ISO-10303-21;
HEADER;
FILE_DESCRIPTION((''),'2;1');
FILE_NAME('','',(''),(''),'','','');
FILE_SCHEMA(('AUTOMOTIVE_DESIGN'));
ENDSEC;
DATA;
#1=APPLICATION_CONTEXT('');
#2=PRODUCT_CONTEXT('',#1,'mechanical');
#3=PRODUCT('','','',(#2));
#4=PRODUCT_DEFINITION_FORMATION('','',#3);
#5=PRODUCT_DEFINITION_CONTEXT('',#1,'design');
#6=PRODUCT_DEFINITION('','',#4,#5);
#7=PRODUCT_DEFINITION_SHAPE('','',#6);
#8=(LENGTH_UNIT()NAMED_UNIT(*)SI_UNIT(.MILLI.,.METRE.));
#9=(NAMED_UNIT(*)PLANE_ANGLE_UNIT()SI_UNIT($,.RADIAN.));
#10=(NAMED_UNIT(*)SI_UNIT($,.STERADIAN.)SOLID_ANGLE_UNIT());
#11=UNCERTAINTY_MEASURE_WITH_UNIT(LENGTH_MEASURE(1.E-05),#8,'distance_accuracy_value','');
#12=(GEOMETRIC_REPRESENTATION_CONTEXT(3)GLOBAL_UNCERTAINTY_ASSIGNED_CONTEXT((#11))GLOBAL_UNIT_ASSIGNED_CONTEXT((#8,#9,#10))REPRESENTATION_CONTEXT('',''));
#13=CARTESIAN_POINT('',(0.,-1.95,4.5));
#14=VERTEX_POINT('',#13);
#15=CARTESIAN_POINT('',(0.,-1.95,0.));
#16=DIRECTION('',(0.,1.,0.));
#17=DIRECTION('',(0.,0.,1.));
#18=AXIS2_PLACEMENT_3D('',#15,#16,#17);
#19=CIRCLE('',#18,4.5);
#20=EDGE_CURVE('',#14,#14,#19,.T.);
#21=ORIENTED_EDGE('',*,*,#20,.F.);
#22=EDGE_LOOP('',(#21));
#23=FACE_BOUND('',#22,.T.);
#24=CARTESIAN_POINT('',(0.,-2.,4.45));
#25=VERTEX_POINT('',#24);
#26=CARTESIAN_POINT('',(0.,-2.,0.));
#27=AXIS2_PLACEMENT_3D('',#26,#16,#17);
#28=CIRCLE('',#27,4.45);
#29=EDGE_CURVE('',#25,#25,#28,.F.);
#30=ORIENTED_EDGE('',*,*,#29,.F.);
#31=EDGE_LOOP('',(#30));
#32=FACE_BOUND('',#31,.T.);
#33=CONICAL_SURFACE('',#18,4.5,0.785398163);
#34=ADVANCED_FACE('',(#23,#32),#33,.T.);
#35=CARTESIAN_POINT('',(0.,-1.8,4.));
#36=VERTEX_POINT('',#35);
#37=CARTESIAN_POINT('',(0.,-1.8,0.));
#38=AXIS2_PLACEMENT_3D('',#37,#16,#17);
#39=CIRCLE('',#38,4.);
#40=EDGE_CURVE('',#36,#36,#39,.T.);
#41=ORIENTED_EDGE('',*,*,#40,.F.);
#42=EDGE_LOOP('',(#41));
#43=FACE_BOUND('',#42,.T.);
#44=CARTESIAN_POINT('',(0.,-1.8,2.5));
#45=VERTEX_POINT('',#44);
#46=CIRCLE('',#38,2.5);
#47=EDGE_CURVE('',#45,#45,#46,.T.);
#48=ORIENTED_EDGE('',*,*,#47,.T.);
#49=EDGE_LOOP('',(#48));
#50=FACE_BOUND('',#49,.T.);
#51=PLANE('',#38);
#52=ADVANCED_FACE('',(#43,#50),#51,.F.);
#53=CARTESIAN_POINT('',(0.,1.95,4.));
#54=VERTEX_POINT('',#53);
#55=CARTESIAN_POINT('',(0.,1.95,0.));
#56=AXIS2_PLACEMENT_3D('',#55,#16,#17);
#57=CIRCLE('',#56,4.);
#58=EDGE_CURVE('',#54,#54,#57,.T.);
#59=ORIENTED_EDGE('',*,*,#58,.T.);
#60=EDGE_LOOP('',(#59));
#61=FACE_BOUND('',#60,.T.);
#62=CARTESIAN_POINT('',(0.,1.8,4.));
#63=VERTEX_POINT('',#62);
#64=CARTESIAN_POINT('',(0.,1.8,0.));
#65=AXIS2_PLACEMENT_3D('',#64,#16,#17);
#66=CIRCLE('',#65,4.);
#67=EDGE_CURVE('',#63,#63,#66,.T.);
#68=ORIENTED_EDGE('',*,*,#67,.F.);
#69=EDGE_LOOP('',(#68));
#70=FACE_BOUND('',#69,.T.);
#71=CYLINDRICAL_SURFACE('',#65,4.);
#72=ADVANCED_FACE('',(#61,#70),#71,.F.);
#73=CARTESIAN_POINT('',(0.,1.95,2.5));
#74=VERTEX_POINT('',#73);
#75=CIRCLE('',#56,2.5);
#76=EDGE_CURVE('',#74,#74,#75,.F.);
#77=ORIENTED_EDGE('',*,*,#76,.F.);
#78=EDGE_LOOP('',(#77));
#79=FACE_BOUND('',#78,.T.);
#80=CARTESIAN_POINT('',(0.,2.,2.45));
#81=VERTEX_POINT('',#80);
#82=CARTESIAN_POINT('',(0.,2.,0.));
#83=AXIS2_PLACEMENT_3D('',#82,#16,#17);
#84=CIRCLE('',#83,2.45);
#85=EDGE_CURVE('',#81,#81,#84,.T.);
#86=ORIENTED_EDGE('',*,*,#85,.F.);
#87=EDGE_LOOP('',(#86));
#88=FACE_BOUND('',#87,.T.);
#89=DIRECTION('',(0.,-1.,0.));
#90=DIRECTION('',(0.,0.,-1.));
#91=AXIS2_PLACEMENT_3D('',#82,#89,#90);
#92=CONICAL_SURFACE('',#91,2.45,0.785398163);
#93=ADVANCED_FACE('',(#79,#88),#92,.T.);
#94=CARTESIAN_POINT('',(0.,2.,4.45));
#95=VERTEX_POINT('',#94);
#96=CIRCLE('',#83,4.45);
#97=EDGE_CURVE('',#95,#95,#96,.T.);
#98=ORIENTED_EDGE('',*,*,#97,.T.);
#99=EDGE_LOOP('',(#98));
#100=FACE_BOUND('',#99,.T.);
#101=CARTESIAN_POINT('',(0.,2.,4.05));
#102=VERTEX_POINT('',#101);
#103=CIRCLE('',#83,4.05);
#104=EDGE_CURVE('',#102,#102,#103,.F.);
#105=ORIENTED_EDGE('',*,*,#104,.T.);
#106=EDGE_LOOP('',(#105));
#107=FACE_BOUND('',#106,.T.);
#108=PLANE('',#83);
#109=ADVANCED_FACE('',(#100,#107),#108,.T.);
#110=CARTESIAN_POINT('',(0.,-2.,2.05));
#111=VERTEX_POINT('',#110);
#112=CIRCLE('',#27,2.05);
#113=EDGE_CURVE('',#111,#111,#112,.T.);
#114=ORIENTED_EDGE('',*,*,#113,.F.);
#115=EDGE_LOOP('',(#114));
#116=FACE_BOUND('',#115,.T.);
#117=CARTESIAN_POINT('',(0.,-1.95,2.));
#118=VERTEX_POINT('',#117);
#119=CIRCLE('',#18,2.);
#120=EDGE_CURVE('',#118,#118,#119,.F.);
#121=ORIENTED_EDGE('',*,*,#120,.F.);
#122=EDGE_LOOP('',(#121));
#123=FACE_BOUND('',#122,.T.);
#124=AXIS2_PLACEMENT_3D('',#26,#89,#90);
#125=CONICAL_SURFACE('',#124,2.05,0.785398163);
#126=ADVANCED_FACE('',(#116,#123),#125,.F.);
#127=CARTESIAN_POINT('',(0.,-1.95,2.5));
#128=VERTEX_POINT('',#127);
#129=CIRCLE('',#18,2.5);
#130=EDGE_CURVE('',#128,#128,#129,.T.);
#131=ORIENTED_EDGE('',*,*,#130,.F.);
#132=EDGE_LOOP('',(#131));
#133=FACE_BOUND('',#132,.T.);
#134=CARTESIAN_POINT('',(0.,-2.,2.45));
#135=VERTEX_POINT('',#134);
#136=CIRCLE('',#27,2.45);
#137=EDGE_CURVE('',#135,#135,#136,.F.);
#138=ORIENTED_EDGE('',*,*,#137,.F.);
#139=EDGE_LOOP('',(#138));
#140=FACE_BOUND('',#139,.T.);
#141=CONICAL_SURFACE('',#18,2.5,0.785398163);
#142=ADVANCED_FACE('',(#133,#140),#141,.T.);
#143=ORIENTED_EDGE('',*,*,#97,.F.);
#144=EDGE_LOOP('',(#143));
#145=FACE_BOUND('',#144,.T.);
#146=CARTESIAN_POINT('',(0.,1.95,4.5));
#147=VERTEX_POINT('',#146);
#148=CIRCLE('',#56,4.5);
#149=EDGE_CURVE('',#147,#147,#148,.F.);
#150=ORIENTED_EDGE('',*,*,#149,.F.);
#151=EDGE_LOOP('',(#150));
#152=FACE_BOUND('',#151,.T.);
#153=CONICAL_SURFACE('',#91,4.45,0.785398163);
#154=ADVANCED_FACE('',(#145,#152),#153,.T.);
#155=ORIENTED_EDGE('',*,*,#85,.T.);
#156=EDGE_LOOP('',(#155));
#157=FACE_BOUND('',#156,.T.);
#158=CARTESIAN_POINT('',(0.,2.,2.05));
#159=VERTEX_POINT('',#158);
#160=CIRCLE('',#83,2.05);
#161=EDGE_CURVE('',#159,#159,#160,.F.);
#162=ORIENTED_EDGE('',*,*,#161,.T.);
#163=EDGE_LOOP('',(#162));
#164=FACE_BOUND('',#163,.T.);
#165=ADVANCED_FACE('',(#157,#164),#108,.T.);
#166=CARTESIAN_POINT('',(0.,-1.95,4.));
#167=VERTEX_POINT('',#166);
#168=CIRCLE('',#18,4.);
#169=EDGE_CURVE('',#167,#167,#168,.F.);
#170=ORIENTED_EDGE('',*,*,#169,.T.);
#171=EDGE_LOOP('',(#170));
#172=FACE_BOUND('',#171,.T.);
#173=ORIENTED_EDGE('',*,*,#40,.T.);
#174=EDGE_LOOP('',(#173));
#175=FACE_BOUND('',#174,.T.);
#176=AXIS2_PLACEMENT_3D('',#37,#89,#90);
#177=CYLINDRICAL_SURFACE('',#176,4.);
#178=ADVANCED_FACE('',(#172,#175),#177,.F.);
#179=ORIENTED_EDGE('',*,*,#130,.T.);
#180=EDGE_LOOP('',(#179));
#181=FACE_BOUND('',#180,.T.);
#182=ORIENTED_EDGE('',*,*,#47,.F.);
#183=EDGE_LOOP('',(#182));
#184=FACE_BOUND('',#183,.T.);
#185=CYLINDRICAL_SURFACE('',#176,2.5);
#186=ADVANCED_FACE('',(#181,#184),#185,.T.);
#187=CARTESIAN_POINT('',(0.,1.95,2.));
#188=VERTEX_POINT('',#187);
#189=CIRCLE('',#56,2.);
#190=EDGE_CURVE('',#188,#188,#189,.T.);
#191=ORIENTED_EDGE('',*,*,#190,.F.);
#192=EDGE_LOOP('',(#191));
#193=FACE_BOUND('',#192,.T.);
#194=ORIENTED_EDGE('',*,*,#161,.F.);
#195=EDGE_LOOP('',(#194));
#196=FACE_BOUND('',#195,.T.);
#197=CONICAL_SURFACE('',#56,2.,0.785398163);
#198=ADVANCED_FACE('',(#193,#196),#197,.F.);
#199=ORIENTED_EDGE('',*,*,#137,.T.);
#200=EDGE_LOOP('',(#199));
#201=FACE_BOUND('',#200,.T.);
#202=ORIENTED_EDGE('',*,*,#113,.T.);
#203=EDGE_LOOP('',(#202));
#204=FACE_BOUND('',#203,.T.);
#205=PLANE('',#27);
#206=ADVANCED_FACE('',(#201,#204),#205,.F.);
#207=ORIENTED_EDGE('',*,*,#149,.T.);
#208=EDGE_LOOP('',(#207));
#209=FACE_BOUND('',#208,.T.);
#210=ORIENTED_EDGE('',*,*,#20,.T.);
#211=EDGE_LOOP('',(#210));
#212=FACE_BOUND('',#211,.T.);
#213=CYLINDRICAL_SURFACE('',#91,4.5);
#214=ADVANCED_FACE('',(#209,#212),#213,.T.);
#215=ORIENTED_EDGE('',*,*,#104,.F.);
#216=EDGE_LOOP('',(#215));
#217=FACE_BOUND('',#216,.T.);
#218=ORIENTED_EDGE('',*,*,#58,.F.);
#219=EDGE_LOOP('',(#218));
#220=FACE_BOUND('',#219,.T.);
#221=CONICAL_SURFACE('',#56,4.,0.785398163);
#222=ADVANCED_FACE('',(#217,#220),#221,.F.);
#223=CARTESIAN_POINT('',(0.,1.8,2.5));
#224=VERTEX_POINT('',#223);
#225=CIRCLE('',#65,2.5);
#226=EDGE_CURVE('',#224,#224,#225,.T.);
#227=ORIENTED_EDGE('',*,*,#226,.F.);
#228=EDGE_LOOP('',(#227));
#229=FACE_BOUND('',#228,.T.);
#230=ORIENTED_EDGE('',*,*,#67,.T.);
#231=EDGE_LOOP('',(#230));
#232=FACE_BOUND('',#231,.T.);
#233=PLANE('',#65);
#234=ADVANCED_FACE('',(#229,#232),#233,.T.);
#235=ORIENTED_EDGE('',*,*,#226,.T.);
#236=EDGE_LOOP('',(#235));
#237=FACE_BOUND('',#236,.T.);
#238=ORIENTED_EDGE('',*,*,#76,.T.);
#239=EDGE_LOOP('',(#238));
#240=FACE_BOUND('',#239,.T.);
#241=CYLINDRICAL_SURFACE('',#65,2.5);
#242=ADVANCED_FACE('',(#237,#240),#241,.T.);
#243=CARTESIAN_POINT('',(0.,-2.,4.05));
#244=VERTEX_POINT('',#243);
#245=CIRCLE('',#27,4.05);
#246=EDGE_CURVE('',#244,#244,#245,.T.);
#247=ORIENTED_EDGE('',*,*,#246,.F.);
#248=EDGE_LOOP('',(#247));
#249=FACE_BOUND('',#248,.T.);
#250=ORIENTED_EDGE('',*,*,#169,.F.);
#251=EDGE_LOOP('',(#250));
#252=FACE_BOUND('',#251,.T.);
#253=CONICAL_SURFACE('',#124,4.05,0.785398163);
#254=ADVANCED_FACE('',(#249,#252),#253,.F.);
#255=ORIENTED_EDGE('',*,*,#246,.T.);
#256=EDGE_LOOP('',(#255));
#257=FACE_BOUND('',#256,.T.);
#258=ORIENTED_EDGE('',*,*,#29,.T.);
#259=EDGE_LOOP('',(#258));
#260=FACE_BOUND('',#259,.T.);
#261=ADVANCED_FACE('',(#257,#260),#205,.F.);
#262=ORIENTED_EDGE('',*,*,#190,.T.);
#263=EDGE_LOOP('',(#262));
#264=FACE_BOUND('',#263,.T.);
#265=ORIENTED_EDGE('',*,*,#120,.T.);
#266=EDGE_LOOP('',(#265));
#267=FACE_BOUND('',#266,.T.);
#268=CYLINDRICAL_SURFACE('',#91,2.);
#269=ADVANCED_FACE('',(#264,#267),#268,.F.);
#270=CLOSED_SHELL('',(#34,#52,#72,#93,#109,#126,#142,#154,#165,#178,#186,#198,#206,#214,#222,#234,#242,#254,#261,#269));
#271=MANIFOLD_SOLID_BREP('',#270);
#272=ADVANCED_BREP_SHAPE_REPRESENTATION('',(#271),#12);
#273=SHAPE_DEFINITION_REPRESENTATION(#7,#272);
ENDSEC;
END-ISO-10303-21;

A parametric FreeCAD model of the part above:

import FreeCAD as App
import Part
import Sketcher

V = App.Vector


def edges_at(feature, points):
    """Names of the edges that pass closest to the given points."""
    edges = feature.Shape.Edges
    near = lambda p: min(range(len(edges)), key=lambda i: edges[i].distToShape(Part.Vertex(*p))[0])
    return sorted({f"Edge{near(p) + 1}" for p in points})

doc = App.newDocument("Part")
params = doc.addObject("Spreadsheet::Sheet", "Params")
for row, (alias, value) in enumerate([
    ("sketch1_diameter", "9 mm"),
    ("sketch1_diameter2", "4 mm"),
    ("pad1_length", "4 mm"),
    ("sketch2_diameter", "8 mm"),
    ("sketch2_diameter2", "5 mm"),
    ("pocket1_length", "0.2 mm"),
    ("sketch3_diameter", "8 mm"),
    ("sketch3_diameter2", "5 mm"),
    ("pocket2_length", "0.2 mm"),
    ("chamfer_size", "0.05 mm"),
], start=1):
    params.set(f"A{row}", alias)
    params.set(f"B{row}", "=" + value)
    params.setAlias(f"B{row}", alias)

body = doc.addObject("PartDesign::Body", "Body")

sketch1 = doc.addObject("Sketcher::SketchObject", "Sketch")
body.addObject(sketch1)
sketch1.AttachmentSupport = (doc.XZ_Plane, [""])
sketch1.MapMode = "FlatFace"
sketch1.addGeometry(Part.Circle(V(0, 0, 0), V(0, 0, 1), 4.5), False)
sketch1.addGeometry(Part.Circle(V(0, 0, 0), V(0, 0, 1), 2), False)
sketch1.addConstraint(Sketcher.Constraint("Coincident", 0, 3, -1, 1))
sketch1.addConstraint(Sketcher.Constraint("Coincident", 1, 3, -1, 1))
sketch1.addConstraint(Sketcher.Constraint("Diameter", 0, 9.0))
sketch1.addConstraint(Sketcher.Constraint("Diameter", 1, 4.0))
sketch1.setExpression("Constraints[2]", "Params.sketch1_diameter")
sketch1.setExpression("Constraints[3]", "Params.sketch1_diameter2")
pad1 = doc.addObject("PartDesign::Pad", "Pad")
body.addObject(pad1)
pad1.Profile = sketch1
pad1.setExpression("Length", "Params.pad1_length")
pad1.Midplane = True

sketch2 = doc.addObject("Sketcher::SketchObject", "Sketch001")
body.addObject(sketch2)
sketch2.AttachmentSupport = (doc.XZ_Plane, [""])
sketch2.MapMode = "FlatFace"
sketch2.AttachmentOffset = App.Placement(V(0, 0, -2), App.Rotation())
sketch2.addGeometry(Part.Circle(V(0, 0, 0), V(0, 0, 1), 4), False)
sketch2.addGeometry(Part.Circle(V(0, 0, 0), V(0, 0, 1), 2.5), False)
sketch2.addConstraint(Sketcher.Constraint("Coincident", 0, 3, -1, 1))
sketch2.addConstraint(Sketcher.Constraint("Coincident", 1, 3, -1, 1))
sketch2.addConstraint(Sketcher.Constraint("Diameter", 0, 8.0))
sketch2.addConstraint(Sketcher.Constraint("Diameter", 1, 5.0))
sketch2.setExpression("Constraints[2]", "Params.sketch2_diameter")
sketch2.setExpression("Constraints[3]", "Params.sketch2_diameter2")
pocket1 = doc.addObject("PartDesign::Pocket", "Pocket")
body.addObject(pocket1)
pocket1.Profile = sketch2
pocket1.setExpression("Length", "Params.pocket1_length")
pocket1.Reversed = True

sketch3 = doc.addObject("Sketcher::SketchObject", "Sketch002")
body.addObject(sketch3)
sketch3.AttachmentSupport = (doc.XZ_Plane, [""])
sketch3.MapMode = "FlatFace"
sketch3.AttachmentOffset = App.Placement(V(0, 0, 2), App.Rotation())
sketch3.addGeometry(Part.Circle(V(0, 0, 0), V(0, 0, 1), 4), False)
sketch3.addGeometry(Part.Circle(V(0, 0, 0), V(0, 0, 1), 2.5), False)
sketch3.addConstraint(Sketcher.Constraint("Coincident", 0, 3, -1, 1))
sketch3.addConstraint(Sketcher.Constraint("Coincident", 1, 3, -1, 1))
sketch3.addConstraint(Sketcher.Constraint("Diameter", 0, 8.0))
sketch3.addConstraint(Sketcher.Constraint("Diameter", 1, 5.0))
sketch3.setExpression("Constraints[2]", "Params.sketch3_diameter")
sketch3.setExpression("Constraints[3]", "Params.sketch3_diameter2")
pocket2 = doc.addObject("PartDesign::Pocket", "Pocket001")
body.addObject(pocket2)
pocket2.Profile = sketch3
pocket2.setExpression("Length", "Params.pocket2_length")
doc.recompute()

chamfer = doc.addObject("PartDesign::Chamfer", "Chamfer")
body.addObject(chamfer)
chamfer.Base = (pocket2, edges_at(pocket2, [
    (-4, 2, 0),
    (-2.5, 2, 0),
    (-2.5, -2, 0),
    (-4, -2, 0),
    (-4.5, -2, 0),
    (-4.5, 2, 0),
    (-2, -2, 0),
    (-2, 2, 0),
]))
chamfer.setExpression("Size", "Params.chamfer_size")

doc.recompute()
